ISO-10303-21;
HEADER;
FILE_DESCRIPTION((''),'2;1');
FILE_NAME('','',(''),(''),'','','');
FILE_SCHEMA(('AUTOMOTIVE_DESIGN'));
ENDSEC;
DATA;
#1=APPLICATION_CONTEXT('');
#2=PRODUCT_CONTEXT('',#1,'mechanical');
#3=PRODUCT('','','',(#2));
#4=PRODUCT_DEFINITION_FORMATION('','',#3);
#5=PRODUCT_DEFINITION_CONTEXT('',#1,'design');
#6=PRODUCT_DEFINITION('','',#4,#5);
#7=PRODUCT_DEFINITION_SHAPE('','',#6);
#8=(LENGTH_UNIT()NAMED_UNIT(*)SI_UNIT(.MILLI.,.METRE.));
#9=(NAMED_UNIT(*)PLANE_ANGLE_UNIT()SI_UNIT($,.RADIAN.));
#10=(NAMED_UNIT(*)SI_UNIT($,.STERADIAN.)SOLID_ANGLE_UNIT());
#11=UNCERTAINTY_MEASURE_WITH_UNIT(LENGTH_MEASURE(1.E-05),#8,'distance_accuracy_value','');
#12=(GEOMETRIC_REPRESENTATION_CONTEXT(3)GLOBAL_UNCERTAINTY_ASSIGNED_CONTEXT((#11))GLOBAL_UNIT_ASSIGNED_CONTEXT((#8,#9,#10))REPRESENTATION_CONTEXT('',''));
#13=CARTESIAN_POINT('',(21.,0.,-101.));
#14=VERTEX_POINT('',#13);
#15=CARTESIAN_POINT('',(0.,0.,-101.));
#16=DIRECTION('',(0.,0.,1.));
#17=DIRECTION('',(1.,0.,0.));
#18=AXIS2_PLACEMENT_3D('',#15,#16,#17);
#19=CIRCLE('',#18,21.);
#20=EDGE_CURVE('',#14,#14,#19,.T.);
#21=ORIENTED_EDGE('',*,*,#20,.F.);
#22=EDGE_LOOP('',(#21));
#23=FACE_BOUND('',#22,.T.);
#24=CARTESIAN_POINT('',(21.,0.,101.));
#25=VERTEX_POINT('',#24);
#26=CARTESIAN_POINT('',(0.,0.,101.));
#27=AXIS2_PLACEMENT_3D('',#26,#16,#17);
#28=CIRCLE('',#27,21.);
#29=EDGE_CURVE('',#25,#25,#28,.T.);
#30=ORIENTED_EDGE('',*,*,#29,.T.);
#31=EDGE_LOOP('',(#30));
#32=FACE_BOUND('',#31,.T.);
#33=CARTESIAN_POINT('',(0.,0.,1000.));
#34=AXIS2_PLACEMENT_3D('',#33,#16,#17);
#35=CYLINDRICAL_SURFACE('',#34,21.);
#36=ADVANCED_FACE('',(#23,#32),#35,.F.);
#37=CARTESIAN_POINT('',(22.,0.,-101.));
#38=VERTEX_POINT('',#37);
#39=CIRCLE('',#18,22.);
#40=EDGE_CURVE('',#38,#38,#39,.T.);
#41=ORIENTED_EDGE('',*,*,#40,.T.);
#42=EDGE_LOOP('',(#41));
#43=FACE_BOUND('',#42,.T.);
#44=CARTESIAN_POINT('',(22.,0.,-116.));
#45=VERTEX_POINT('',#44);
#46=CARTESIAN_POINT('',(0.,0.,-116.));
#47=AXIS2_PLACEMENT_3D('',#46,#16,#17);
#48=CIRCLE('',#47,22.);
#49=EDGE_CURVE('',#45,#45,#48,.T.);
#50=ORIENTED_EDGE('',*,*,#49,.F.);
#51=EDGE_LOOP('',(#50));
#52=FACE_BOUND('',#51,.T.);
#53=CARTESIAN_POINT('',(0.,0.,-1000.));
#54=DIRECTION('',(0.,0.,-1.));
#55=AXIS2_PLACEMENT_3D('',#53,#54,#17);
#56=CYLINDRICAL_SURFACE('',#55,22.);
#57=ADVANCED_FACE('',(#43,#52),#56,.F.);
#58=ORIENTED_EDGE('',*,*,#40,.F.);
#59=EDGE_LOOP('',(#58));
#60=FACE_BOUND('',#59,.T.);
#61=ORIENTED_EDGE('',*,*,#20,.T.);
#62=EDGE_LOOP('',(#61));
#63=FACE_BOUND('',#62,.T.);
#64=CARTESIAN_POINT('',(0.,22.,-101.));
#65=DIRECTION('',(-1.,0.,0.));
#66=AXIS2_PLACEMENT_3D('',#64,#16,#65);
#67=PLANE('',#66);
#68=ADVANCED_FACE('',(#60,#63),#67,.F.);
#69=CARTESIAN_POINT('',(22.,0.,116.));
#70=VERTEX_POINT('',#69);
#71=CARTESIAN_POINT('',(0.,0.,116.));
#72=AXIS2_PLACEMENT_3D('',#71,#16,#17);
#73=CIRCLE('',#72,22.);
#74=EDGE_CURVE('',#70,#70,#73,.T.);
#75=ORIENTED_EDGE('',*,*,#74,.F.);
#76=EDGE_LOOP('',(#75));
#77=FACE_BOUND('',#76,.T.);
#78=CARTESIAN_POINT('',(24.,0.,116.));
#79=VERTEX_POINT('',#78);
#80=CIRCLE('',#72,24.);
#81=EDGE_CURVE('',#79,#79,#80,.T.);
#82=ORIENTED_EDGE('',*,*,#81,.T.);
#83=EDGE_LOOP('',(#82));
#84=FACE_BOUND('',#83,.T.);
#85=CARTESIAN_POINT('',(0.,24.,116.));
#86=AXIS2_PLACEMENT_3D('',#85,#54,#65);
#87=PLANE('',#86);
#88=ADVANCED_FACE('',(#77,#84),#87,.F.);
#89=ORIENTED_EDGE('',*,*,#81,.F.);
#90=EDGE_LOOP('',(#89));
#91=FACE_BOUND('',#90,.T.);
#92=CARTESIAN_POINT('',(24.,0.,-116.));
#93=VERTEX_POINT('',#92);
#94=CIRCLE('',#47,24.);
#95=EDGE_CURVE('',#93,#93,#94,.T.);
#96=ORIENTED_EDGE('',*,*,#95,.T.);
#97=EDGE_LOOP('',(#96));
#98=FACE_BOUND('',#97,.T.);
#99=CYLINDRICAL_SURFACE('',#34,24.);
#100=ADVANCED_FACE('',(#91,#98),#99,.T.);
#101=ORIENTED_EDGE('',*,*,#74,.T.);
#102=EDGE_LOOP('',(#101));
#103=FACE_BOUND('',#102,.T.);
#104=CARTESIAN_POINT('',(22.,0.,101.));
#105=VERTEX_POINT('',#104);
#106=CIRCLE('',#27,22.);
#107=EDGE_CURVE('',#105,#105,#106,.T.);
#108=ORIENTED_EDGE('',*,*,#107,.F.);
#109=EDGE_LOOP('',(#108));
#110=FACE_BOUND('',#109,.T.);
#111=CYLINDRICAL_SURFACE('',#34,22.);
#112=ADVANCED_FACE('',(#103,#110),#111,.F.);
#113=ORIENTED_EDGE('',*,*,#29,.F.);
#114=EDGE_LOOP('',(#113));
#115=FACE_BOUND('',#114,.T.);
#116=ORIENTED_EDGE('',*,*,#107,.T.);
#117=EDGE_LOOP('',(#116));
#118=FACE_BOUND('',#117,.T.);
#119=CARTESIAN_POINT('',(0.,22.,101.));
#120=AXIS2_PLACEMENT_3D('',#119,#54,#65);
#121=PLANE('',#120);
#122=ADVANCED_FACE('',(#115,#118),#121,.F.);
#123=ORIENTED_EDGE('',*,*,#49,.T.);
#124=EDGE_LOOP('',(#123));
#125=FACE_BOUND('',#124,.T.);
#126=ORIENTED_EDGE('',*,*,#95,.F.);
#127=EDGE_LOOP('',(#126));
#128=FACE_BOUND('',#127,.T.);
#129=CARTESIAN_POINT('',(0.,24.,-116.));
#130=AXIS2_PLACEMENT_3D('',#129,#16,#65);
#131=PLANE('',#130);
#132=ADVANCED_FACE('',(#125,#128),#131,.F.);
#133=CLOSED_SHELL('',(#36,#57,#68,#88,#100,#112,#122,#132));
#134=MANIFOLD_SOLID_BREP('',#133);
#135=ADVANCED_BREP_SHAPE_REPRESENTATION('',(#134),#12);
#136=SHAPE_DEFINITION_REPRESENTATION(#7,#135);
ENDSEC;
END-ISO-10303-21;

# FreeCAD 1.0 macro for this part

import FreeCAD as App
import Part
import Sketcher
from FreeCAD import Vector


def add_polygon(sketch, points):
    """Adds a closed chain of lines whose ends are joined by coincident constraints."""
    first, n = sketch.GeometryCount, len(points)
    for a, b in zip(points, points[1:] + points[:1]):
        sketch.addGeometry(Part.LineSegment(App.Vector(*a, 0), App.Vector(*b, 0)), False)
    for i in range(n):
        sketch.addConstraint(Sketcher.Constraint("Coincident", first + i, 2, first + (i + 1) % n, 1))

doc = App.newDocument("Part")
body = doc.addObject("PartDesign::Body", "Body")

# Sketch on YZ plane
sketch1 = doc.addObject("Sketcher::SketchObject", "Sketch")
body.addObject(sketch1)
sketch1.AttachmentSupport = (doc.YZ_Plane, [""])
sketch1.MapMode = "FlatFace"
add_polygon(sketch1, [(24, 0), (24, 116), (22, 116), (22, 101), (21, 101), (21, 0)])  # lines 0-5
sketch1.addConstraint([
    Sketcher.Constraint("Vertical", 0),
    Sketcher.Constraint("Horizontal", 1),
    Sketcher.Constraint("Vertical", 2),
    Sketcher.Constraint("Horizontal", 3),
    Sketcher.Constraint("Vertical", 4),
    Sketcher.Constraint("Horizontal", 5),
    Sketcher.Constraint("PointOnObject", 4, 2, -1),
    Sketcher.Constraint("DistanceX", 1, 2, 1, 1, 2.0),
    Sketcher.Constraint("DistanceX", 3, 2, 3, 1, 1.0),
    Sketcher.Constraint("DistanceY", 0, 1, 0, 2, 116.0),
    Sketcher.Constraint("DistanceY", 2, 2, 2, 1, 15.0),
    Sketcher.Constraint("DistanceX", -1, 1, 0, 2, 24.0),
])
revolution = doc.addObject("PartDesign::Revolution", "Revolution")
body.addObject(revolution)
revolution.Profile = sketch1
revolution.ReferenceAxis = (sketch1, ["V_Axis"])
revolution.Angle = 360
doc.recompute()

mirrored = doc.addObject("PartDesign::Mirrored", "Mirrored")
body.addObject(mirrored)
mirrored.Originals = [revolution]
mirrored.MirrorPlane = (doc.XY_Plane, [""])
body.Tip = mirrored

doc.recompute()
